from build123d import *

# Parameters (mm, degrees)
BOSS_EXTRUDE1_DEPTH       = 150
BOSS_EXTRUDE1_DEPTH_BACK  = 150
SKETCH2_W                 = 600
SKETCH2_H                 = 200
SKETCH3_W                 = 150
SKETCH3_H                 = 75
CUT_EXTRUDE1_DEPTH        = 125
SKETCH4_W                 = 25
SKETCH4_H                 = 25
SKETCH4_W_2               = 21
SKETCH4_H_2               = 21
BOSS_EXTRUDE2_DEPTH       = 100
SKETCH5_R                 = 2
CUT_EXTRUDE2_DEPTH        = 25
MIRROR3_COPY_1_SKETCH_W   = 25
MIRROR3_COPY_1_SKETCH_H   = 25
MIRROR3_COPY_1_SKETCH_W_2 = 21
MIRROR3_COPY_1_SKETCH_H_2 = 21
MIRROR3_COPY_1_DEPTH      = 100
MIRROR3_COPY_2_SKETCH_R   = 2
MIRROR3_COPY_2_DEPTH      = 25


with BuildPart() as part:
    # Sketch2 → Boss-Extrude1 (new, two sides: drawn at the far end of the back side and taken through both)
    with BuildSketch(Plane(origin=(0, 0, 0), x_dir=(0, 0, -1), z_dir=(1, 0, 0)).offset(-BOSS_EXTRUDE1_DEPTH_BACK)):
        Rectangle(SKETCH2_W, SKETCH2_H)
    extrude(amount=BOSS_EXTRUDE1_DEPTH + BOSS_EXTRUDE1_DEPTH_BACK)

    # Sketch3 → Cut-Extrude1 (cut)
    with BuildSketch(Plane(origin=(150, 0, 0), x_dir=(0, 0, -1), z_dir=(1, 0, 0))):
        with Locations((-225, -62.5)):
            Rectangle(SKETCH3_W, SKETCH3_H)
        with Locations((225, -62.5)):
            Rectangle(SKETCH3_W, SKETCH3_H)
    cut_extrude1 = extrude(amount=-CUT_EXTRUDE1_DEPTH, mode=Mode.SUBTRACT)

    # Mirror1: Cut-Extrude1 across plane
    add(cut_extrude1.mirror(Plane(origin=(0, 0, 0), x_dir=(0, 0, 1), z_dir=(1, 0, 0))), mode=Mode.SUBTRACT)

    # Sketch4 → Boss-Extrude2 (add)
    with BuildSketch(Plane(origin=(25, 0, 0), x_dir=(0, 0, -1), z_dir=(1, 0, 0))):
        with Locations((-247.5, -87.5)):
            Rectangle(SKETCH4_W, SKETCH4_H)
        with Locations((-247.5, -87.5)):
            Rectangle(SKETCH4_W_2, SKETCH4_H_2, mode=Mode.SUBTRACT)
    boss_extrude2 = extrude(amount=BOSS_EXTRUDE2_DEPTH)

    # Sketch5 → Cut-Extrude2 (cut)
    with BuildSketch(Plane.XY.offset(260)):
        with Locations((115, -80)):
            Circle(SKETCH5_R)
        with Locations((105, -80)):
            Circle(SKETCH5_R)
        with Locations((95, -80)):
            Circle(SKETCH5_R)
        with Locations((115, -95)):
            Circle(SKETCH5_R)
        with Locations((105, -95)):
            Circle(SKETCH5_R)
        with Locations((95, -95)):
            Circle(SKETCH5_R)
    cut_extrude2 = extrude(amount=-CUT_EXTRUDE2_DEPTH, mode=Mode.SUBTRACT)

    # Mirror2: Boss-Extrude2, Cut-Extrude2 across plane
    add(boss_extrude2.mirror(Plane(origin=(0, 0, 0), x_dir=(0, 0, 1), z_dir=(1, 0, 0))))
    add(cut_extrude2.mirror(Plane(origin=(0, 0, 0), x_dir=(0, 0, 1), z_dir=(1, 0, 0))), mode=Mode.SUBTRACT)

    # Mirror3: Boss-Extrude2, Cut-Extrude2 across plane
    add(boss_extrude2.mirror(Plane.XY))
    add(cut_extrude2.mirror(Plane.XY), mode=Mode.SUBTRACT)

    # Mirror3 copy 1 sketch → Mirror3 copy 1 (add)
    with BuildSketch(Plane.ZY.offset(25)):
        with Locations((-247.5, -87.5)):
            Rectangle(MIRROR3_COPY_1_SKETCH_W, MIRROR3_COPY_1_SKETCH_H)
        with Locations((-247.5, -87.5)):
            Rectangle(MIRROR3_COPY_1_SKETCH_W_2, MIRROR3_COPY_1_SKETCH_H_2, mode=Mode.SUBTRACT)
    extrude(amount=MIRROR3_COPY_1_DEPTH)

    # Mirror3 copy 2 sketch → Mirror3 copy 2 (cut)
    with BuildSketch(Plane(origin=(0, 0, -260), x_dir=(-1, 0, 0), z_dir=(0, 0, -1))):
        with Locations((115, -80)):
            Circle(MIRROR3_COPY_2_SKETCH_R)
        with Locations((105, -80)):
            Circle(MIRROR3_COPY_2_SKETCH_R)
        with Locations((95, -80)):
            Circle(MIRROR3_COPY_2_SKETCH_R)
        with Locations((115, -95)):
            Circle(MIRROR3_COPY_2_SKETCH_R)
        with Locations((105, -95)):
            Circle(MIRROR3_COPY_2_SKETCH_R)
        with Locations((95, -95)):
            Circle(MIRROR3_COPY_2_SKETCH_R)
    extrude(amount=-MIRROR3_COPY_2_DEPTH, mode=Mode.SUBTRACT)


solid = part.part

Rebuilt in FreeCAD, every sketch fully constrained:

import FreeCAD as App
import Part
import Sketcher
from FreeCAD import Vector
Q = App.Units.Quantity


def add_polygon(sketch, points):
    """Adds a closed chain of lines whose ends are joined by coincident constraints."""
    first, n = sketch.GeometryCount, len(points)
    for a, b in zip(points, points[1:] + points[:1]):
        sketch.addGeometry(Part.LineSegment(App.Vector(*a, 0), App.Vector(*b, 0)), False)
    for i in range(n):
        sketch.addConstraint(Sketcher.Constraint("Coincident", first + i, 2, first + (i + 1) % n, 1))

doc = App.newDocument("Part")
body = doc.addObject("PartDesign::Body", "Body")

# Sketch on YZ plane
sketch1 = body.newObject("Sketcher::SketchObject", "Sketch")
sketch1.AttachmentSupport = (doc.getObject("YZ_Plane"), [""])
sketch1.MapMode = "FlatFace"
add_polygon(sketch1, [(100, 300), (-100, 300), (-100, -300), (100, -300)])  # lines 0-3
sketch1.addConstraint(Sketcher.Constraint("Horizontal", 0))
sketch1.addConstraint(Sketcher.Constraint("Vertical", 1))
sketch1.addConstraint(Sketcher.Constraint("Horizontal", 2))
sketch1.addConstraint(Sketcher.Constraint("Vertical", 3))
sketch1.addConstraint(Sketcher.Constraint("Symmetric", 0, 2, 2, 2, -1, 1))
sketch1.addConstraint(Sketcher.Constraint("DistanceX", 0, 2, 0, 1, Q("200 mm")))
sketch1.addConstraint(Sketcher.Constraint("DistanceY", 1, 2, 1, 1, Q("600 mm")))
pad1 = body.newObject("PartDesign::Pad", "Pad")
pad1.Profile = sketch1
pad1.Type = "TwoLengths"
pad1.Length = 150
pad1.Length2 = 150

# Sketch on YZ plane
sketch2 = body.newObject("Sketcher::SketchObject", "Sketch001")
sketch2.AttachmentSupport = (doc.getObject("YZ_Plane"), [""])
sketch2.MapMode = "FlatFace"
sketch2.AttachmentOffset = App.Placement(Vector(0, 0, 150), App.Rotation())
add_polygon(sketch2, [(-25, 300), (-100, 300), (-100, 150), (-25, 150)])  # lines 0-3
add_polygon(sketch2, [(-25, -150), (-100, -150), (-100, -300), (-25, -300)])  # lines 4-7
sketch2.addConstraint(Sketcher.Constraint("Horizontal", 0))
sketch2.addConstraint(Sketcher.Constraint("Vertical", 1))
sketch2.addConstraint(Sketcher.Constraint("Horizontal", 2))
sketch2.addConstraint(Sketcher.Constraint("Vertical", 3))
sketch2.addConstraint(Sketcher.Constraint("Horizontal", 4))
sketch2.addConstraint(Sketcher.Constraint("Vertical", 5))
sketch2.addConstraint(Sketcher.Constraint("Horizontal", 6))
sketch2.addConstraint(Sketcher.Constraint("Vertical", 7))
sketch2.addConstraint(Sketcher.Constraint("Symmetric", 1, 2, 4, 2, -1))
sketch2.addConstraint(Sketcher.Constraint("Symmetric", 3, 2, 6, 2, -1))
sketch2.addConstraint(Sketcher.Constraint("DistanceX", 0, 2, 0, 1, Q("75 mm")))
sketch2.addConstraint(Sketcher.Constraint("DistanceY", 1, 2, 1, 1, Q("150 mm")))
sketch2.addConstraint(Sketcher.Constraint("DistanceX", 0, 2, -1, 1, Q("100 mm")))
sketch2.addConstraint(Sketcher.Constraint("DistanceY", -1, 1, 0, 2, Q("300 mm")))
pocket1 = body.newObject("PartDesign::Pocket", "Pocket")
pocket1.Profile = sketch2
pocket1.Length = 125
doc.recompute()

mirrored = body.newObject("PartDesign::Mirrored", "Mirrored")
mirrored.Originals = [pocket1]
mirrored.MirrorPlane = (doc.getObject("YZ_Plane"), [""])
body.Tip = mirrored

# Sketch on YZ plane
sketch3 = body.newObject("Sketcher::SketchObject", "Sketch002")
sketch3.AttachmentSupport = (doc.getObject("YZ_Plane"), [""])
sketch3.MapMode = "FlatFace"
sketch3.AttachmentOffset = App.Placement(Vector(0, 0, 25), App.Rotation())
add_polygon(sketch3, [(-75, 260), (-100, 260), (-100, 235), (-75, 235)])  # lines 0-3
add_polygon(sketch3, [(-98, 237), (-98, 258), (-77, 258), (-77, 237)])  # lines 4-7
sketch3.addConstraint(Sketcher.Constraint("Horizontal", 0))
sketch3.addConstraint(Sketcher.Constraint("Vertical", 1))
sketch3.addConstraint(Sketcher.Constraint("Horizontal", 2))
sketch3.addConstraint(Sketcher.Constraint("Vertical", 3))
sketch3.addConstraint(Sketcher.Constraint("Vertical", 4))
sketch3.addConstraint(Sketcher.Constraint("Horizontal", 5))
sketch3.addConstraint(Sketcher.Constraint("Vertical", 6))
sketch3.addConstraint(Sketcher.Constraint("Horizontal", 7))
sketch3.addConstraint(Sketcher.Constraint("Equal", 2, 1))
sketch3.addConstraint(Sketcher.Constraint("Equal", 7, 4))
sketch3.addConstraint(Sketcher.Constraint("DistanceX", 0, 2, 0, 1, Q("25 mm")))
sketch3.addConstraint(Sketcher.Constraint("DistanceX", 5, 1, 5, 2, Q("21 mm")))
sketch3.addConstraint(Sketcher.Constraint("DistanceX", 0, 2, -1, 1, Q("100 mm")))
sketch3.addConstraint(Sketcher.Constraint("DistanceY", -1, 1, 0, 2, Q("260 mm")))
sketch3.addConstraint(Sketcher.Constraint("DistanceX", 4, 2, -1, 1, Q("98 mm")))
sketch3.addConstraint(Sketcher.Constraint("DistanceY", -1, 1, 4, 2, Q("258 mm")))
pad2 = body.newObject("PartDesign::Pad", "Pad001")
pad2.Profile = sketch3
pad2.Length = 100

# Sketch on XY plane
sketch4 = body.newObject("Sketcher::SketchObject", "Sketch003")
sketch4.AttachmentSupport = (doc.getObject("XY_Plane"), [""])
sketch4.MapMode = "FlatFace"
sketch4.AttachmentOffset = App.Placement(Vector(0, 0, 260), App.Rotation())
sketch4.addGeometry(Part.Circle(Vector(115, -80, 0), Vector(0, 0, 1), 2), False)
sketch4.addGeometry(Part.Circle(Vector(105, -80, 0), Vector(0, 0, 1), 2), False)
sketch4.addGeometry(Part.Circle(Vector(95, -80, 0), Vector(0, 0, 1), 2), False)
sketch4.addGeometry(Part.Circle(Vector(115, -95, 0), Vector(0, 0, 1), 2), False)
sketch4.addGeometry(Part.Circle(Vector(105, -95, 0), Vector(0, 0, 1), 2), False)
sketch4.addGeometry(Part.Circle(Vector(95, -95, 0), Vector(0, 0, 1), 2), False)
sketch4.addConstraint(Sketcher.Constraint("Equal", 0, 1))
sketch4.addConstraint(Sketcher.Constraint("Equal", 1, 2))
sketch4.addConstraint(Sketcher.Constraint("Equal", 2, 3))
sketch4.addConstraint(Sketcher.Constraint("Equal", 3, 4))
sketch4.addConstraint(Sketcher.Constraint("Equal", 4, 5))
sketch4.addConstraint(Sketcher.Constraint("Horizontal", 0, 3, 1, 3))
sketch4.addConstraint(Sketcher.Constraint("Horizontal", 1, 3, 2, 3))
sketch4.addConstraint(Sketcher.Constraint("Horizontal", 3, 3, 4, 3))
sketch4.addConstraint(Sketcher.Constraint("Horizontal", 4, 3, 5, 3))
sketch4.addConstraint(Sketcher.Constraint("Vertical", 0, 3, 3, 3))
sketch4.addConstraint(Sketcher.Constraint("Vertical", 1, 3, 4, 3))
sketch4.addConstraint(Sketcher.Constraint("Vertical", 2, 3, 5, 3))
sketch4.addConstraint(Sketcher.Constraint("Diameter", 0, Q("4 mm")))
sketch4.addConstraint(Sketcher.Constraint("DistanceX", -1, 1, 0, 3, Q("115 mm")))
sketch4.addConstraint(Sketcher.Constraint("DistanceY", 0, 3, -1, 1, Q("80 mm")))
sketch4.addConstraint(Sketcher.Constraint("DistanceX", -1, 1, 1, 3, Q("105 mm")))
sketch4.addConstraint(Sketcher.Constraint("DistanceX", -1, 1, 2, 3, Q("95 mm")))
sketch4.addConstraint(Sketcher.Constraint("DistanceY", 3, 3, -1, 1, Q("95 mm")))
pocket2 = body.newObject("PartDesign::Pocket", "Pocket001")
pocket2.Profile = sketch4
pocket2.Length = 25
doc.recompute()

mirrored2 = body.newObject("PartDesign::Mirrored", "Mirrored001")
mirrored2.Originals = [pad2, pocket2]
mirrored2.MirrorPlane = (doc.getObject("YZ_Plane"), [""])
body.Tip = mirrored2
doc.recompute()

mirrored3 = body.newObject("PartDesign::Mirrored", "Mirrored002")
mirrored3.Originals = [pad2, pocket2]
mirrored3.MirrorPlane = (doc.getObject("XY_Plane"), [""])
body.Tip = mirrored3

# Sketch on YZ plane
sketch5 = body.newObject("Sketcher::SketchObject", "Sketch004")
sketch5.AttachmentSupport = (doc.getObject("YZ_Plane"), [""])
sketch5.MapMode = "FlatFace"
sketch5.AttachmentOffset = App.Placement(Vector(0, 0, -25), App.Rotation())
add_polygon(sketch5, [(-75, -260), (-100, -260), (-100, -235), (-75, -235)])  # lines 0-3
add_polygon(sketch5, [(-98, -237), (-98, -258), (-77, -258), (-77, -237)])  # lines 4-7
sketch5.addConstraint(Sketcher.Constraint("Horizontal", 0))
sketch5.addConstraint(Sketcher.Constraint("Vertical", 1))
sketch5.addConstraint(Sketcher.Constraint("Horizontal", 2))
sketch5.addConstraint(Sketcher.Constraint("Vertical", 3))
sketch5.addConstraint(Sketcher.Constraint("Vertical", 4))
sketch5.addConstraint(Sketcher.Constraint("Horizontal", 5))
sketch5.addConstraint(Sketcher.Constraint("Vertical", 6))
sketch5.addConstraint(Sketcher.Constraint("Horizontal", 7))
sketch5.addConstraint(Sketcher.Constraint("Equal", 2, 1))
sketch5.addConstraint(Sketcher.Constraint("Equal", 7, 4))
sketch5.addConstraint(Sketcher.Constraint("DistanceX", 0, 2, 0, 1, Q("25 mm")))
sketch5.addConstraint(Sketcher.Constraint("DistanceX", 5, 1, 5, 2, Q("21 mm")))
sketch5.addConstraint(Sketcher.Constraint("DistanceX", 0, 2, -1, 1, Q("100 mm")))
sketch5.addConstraint(Sketcher.Constraint("DistanceY", 0, 2, -1, 1, Q("260 mm")))
sketch5.addConstraint(Sketcher.Constraint("DistanceX", 4, 2, -1, 1, Q("98 mm")))
sketch5.addConstraint(Sketcher.Constraint("DistanceY", 4, 2, -1, 1, Q("258 mm")))
pad3 = body.newObject("PartDesign::Pad", "Pad002")
pad3.Profile = sketch5
pad3.Length = 100
pad3.Reversed = True

# Sketch on XY plane
sketch6 = body.newObject("Sketcher::SketchObject", "Sketch005")
sketch6.AttachmentSupport = (doc.getObject("XY_Plane"), [""])
sketch6.MapMode = "FlatFace"
sketch6.AttachmentOffset = App.Placement(Vector(0, 0, -260), App.Rotation())
sketch6.addGeometry(Part.Circle(Vector(-115, -80, 0), Vector(0, 0, 1), 2), False)
sketch6.addGeometry(Part.Circle(Vector(-105, -80, 0), Vector(0, 0, 1), 2), False)
sketch6.addGeometry(Part.Circle(Vector(-95, -80, 0), Vector(0, 0, 1), 2), False)
sketch6.addGeometry(Part.Circle(Vector(-115, -95, 0), Vector(0, 0, 1), 2), False)
sketch6.addGeometry(Part.Circle(Vector(-105, -95, 0), Vector(0, 0, 1), 2), False)
sketch6.addGeometry(Part.Circle(Vector(-95, -95, 0), Vector(0, 0, 1), 2), False)
sketch6.addConstraint(Sketcher.Constraint("Equal", 0, 1))
sketch6.addConstraint(Sketcher.Constraint("Equal", 1, 2))
sketch6.addConstraint(Sketcher.Constraint("Equal", 2, 3))
sketch6.addConstraint(Sketcher.Constraint("Equal", 3, 4))
sketch6.addConstraint(Sketcher.Constraint("Equal", 4, 5))
sketch6.addConstraint(Sketcher.Constraint("Horizontal", 0, 3, 1, 3))
sketch6.addConstraint(Sketcher.Constraint("Horizontal", 1, 3, 2, 3))
sketch6.addConstraint(Sketcher.Constraint("Horizontal", 3, 3, 4, 3))
sketch6.addConstraint(Sketcher.Constraint("Horizontal", 4, 3, 5, 3))
sketch6.addConstraint(Sketcher.Constraint("Vertical", 0, 3, 3, 3))
sketch6.addConstraint(Sketcher.Constraint("Vertical", 1, 3, 4, 3))
sketch6.addConstraint(Sketcher.Constraint("Vertical", 2, 3, 5, 3))
sketch6.addConstraint(Sketcher.Constraint("Diameter", 0, Q("4 mm")))
sketch6.addConstraint(Sketcher.Constraint("DistanceX", 0, 3, -1, 1, Q("115 mm")))
sketch6.addConstraint(Sketcher.Constraint("DistanceY", 0, 3, -1, 1, Q("80 mm")))
sketch6.addConstraint(Sketcher.Constraint("DistanceX", 1, 3, -1, 1, Q("105 mm")))
sketch6.addConstraint(Sketcher.Constraint("DistanceX", 2, 3, -1, 1, Q("95 mm")))
sketch6.addConstraint(Sketcher.Constraint("DistanceY", 3, 3, -1, 1, Q("95 mm")))
pocket3 = body.newObject("PartDesign::Pocket", "Pocket002")
pocket3.Profile = sketch6
pocket3.Length = 25
pocket3.Reversed = True

doc.recompute()
